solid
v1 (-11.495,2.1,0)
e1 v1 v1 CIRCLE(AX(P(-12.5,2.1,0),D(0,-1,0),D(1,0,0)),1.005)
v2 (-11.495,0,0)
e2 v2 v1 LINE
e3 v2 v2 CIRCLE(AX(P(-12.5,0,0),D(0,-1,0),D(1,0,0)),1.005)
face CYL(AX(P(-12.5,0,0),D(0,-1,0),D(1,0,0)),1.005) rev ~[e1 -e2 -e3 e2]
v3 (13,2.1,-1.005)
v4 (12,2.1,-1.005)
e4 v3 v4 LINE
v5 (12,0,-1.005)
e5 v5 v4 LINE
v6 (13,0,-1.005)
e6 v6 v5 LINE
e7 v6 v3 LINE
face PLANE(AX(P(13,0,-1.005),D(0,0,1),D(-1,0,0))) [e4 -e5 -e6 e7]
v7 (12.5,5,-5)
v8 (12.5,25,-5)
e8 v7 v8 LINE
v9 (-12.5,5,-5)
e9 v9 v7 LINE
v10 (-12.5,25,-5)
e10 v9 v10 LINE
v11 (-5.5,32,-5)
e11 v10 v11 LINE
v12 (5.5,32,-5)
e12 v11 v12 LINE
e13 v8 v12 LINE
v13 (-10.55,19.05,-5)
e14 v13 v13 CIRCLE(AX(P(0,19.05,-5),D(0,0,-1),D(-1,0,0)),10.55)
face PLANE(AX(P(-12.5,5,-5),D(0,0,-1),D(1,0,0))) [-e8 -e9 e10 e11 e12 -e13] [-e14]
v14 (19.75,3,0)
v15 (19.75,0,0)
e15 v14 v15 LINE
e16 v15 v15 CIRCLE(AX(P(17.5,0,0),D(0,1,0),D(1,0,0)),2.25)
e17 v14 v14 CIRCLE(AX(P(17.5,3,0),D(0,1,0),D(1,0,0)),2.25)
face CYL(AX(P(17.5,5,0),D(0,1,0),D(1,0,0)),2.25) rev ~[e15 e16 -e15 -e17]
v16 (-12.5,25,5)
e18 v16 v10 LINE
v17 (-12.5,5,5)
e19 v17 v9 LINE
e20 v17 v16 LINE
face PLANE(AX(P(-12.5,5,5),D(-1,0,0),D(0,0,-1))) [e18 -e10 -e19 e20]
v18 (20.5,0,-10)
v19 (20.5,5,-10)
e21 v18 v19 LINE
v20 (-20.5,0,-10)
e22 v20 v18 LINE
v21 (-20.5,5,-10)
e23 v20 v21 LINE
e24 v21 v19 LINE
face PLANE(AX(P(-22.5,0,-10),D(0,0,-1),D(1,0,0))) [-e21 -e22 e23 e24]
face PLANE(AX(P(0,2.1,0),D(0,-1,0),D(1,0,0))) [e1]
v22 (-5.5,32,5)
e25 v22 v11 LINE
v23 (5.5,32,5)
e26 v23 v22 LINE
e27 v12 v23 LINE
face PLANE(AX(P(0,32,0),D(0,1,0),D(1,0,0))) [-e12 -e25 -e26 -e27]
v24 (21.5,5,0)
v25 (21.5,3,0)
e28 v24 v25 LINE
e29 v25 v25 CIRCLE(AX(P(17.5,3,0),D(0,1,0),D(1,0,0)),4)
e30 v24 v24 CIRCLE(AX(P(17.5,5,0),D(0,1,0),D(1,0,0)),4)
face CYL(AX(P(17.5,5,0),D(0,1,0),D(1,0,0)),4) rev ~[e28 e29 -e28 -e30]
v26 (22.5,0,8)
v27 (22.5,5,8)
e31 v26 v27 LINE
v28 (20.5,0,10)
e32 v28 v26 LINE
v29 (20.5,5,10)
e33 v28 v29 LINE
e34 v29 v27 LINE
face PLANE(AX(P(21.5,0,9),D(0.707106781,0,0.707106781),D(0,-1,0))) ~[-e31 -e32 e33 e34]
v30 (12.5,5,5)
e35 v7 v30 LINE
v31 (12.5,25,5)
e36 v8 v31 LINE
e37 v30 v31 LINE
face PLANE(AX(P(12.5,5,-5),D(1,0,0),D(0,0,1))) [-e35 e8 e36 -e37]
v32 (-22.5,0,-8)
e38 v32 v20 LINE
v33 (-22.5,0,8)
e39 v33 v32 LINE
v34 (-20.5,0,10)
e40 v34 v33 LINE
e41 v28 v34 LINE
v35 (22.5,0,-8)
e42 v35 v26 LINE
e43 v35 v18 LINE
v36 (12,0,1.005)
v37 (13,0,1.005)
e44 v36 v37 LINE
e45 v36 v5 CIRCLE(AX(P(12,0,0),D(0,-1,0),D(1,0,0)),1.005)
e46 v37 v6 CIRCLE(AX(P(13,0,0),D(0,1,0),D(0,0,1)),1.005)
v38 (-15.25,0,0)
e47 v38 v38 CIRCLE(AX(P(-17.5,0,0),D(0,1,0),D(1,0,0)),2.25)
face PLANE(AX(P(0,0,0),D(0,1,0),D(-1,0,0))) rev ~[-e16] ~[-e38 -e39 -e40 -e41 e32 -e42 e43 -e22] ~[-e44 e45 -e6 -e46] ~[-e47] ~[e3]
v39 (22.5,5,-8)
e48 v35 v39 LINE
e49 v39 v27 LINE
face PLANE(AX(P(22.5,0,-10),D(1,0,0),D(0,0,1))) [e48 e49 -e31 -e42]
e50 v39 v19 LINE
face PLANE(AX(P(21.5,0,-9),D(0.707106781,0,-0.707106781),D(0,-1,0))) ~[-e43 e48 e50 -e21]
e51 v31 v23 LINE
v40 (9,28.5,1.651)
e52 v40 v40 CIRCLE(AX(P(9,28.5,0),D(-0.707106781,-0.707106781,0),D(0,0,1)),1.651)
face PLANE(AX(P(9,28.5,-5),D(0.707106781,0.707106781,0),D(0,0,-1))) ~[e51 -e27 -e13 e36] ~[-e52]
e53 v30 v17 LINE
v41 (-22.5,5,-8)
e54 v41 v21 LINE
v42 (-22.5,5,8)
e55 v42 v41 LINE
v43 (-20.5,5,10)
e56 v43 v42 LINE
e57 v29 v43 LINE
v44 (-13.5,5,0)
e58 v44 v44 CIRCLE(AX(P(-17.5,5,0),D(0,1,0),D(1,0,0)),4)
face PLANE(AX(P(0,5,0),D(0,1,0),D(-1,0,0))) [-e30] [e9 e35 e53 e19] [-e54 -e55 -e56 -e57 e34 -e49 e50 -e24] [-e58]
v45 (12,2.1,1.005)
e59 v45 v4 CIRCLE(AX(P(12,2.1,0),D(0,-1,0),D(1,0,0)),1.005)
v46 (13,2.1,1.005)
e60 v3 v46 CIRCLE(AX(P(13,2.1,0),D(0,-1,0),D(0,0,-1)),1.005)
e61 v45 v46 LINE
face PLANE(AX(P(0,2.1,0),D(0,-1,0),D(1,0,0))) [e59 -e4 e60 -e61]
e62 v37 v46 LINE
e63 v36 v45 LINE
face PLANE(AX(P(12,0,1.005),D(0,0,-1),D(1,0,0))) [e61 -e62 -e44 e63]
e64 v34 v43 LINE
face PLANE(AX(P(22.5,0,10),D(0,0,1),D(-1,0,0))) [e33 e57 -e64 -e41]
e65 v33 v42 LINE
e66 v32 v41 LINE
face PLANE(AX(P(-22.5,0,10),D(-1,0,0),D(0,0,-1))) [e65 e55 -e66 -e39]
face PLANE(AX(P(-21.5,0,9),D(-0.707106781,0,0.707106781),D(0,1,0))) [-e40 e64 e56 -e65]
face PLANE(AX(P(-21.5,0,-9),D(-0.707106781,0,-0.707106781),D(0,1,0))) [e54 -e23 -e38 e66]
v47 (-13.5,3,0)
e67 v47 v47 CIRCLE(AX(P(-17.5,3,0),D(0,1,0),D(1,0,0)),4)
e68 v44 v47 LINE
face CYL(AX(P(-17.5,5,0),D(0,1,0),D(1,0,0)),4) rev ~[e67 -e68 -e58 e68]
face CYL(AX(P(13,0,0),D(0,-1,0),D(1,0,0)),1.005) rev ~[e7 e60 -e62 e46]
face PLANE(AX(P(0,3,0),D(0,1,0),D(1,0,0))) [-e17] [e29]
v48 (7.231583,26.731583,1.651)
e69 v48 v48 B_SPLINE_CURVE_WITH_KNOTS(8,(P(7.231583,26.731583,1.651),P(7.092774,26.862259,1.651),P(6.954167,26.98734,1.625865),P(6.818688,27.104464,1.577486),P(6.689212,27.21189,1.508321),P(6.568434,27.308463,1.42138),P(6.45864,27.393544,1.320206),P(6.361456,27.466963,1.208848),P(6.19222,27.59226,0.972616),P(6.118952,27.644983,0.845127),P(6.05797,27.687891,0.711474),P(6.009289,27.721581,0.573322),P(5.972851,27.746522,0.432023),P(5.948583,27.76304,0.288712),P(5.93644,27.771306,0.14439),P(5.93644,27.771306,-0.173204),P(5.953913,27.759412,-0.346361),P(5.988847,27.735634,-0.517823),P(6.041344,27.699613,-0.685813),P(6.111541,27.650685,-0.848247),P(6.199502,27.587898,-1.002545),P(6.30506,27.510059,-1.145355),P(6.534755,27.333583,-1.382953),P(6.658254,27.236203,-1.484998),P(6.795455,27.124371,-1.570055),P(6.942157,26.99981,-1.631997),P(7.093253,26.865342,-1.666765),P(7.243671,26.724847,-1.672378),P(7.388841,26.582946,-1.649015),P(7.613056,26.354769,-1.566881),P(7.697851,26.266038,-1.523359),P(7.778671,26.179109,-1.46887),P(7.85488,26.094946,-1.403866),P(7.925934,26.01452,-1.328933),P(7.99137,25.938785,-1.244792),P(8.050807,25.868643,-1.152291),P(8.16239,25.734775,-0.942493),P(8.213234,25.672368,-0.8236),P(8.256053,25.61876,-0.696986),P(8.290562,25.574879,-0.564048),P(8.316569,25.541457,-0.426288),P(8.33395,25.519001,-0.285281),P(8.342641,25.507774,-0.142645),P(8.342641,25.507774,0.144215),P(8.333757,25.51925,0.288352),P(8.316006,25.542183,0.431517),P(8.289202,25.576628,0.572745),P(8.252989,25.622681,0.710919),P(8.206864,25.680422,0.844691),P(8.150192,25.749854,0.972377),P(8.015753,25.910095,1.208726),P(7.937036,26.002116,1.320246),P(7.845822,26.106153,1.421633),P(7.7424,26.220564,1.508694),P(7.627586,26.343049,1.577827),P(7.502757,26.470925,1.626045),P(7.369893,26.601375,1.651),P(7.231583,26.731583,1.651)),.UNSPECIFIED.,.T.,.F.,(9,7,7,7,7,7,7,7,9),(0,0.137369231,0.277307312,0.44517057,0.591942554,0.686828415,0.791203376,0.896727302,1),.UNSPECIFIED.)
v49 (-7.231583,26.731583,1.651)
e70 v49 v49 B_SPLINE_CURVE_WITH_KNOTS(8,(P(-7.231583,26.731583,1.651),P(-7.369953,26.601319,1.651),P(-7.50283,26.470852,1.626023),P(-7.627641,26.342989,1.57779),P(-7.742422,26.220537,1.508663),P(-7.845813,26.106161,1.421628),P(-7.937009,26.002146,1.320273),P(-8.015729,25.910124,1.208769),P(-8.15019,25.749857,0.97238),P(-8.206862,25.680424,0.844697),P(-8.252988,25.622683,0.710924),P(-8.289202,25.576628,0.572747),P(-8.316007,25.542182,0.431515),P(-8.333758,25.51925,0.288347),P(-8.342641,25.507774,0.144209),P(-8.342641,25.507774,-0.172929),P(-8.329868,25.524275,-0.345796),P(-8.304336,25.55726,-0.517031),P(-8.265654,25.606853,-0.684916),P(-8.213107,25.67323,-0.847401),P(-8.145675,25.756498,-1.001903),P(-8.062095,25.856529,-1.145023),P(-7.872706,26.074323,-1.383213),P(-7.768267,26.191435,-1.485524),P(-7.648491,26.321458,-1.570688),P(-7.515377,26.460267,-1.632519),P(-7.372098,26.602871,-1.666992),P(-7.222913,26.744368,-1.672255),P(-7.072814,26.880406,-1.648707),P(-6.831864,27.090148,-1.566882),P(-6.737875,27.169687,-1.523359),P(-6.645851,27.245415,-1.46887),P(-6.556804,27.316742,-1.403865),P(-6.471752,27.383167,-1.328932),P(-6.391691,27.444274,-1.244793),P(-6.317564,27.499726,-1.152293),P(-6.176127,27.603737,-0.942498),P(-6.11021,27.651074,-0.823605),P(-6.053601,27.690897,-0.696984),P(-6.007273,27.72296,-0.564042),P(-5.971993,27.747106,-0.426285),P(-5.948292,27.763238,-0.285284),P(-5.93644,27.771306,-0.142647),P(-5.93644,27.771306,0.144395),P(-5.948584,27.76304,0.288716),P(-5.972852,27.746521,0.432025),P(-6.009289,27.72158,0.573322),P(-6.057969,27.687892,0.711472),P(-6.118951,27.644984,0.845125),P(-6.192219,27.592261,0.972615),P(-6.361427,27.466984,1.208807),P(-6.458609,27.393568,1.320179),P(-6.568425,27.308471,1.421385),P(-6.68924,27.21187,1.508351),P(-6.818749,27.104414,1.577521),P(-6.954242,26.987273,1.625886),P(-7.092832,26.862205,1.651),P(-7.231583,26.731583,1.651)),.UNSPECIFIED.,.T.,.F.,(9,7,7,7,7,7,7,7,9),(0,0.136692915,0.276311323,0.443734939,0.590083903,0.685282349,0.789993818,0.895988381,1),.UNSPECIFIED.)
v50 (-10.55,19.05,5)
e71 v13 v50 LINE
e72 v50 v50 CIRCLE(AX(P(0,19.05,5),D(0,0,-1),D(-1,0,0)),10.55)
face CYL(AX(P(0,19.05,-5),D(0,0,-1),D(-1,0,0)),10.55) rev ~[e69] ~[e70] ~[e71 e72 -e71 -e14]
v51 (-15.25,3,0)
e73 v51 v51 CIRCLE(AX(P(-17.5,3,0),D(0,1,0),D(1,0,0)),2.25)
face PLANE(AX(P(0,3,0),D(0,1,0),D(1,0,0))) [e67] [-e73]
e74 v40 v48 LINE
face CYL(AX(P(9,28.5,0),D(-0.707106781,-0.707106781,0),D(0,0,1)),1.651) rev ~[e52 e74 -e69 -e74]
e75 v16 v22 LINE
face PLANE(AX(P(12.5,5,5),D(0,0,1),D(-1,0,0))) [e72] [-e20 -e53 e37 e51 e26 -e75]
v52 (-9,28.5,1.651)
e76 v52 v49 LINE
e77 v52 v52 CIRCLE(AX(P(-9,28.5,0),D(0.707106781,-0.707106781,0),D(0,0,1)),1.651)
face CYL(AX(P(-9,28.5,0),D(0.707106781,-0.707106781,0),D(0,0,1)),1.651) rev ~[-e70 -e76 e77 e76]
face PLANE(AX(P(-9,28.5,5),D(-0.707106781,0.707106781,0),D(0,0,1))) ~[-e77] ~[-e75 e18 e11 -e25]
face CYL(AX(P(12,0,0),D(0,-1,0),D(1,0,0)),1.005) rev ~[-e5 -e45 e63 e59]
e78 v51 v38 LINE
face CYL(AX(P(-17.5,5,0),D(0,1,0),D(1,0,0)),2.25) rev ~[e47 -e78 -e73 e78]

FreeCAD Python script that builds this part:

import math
import FreeCAD as App
import Part
import Sketcher
Q = App.Units.Quantity


def edges_at(feature, points):
    """Names of the edges that pass closest to the given points."""
    edges = feature.Shape.Edges
    near = lambda p: min(range(len(edges)), key=lambda i: edges[i].distToShape(Part.Vertex(*p))[0])
    return sorted({f"Edge{near(p) + 1}" for p in points})

doc = App.newDocument("Part")
body = doc.addObject("PartDesign::Body", "Body")

sketch1 = doc.addObject("Sketcher::SketchObject", "Sketch")
body.addObject(sketch1)
sketch1.AttachmentSupport = (doc.XZ_Plane, [""])
sketch1.MapMode = "FlatFace"
sketch1.addGeometry(Part.LineSegment(App.Vector(-22, 10, 0), App.Vector(22, 10, 0)), False)
sketch1.addGeometry(Part.LineSegment(App.Vector(22, 10, 0), App.Vector(22, -10, 0)), False)
sketch1.addGeometry(Part.LineSegment(App.Vector(22, -10, 0), App.Vector(-22, -10, 0)), False)
sketch1.addGeometry(Part.LineSegment(App.Vector(-22, -10, 0), App.Vector(-22, 10, 0)), False)
sketch1.addConstraint(Sketcher.Constraint("Coincident", 0, 2, 1, 1))
sketch1.addConstraint(Sketcher.Constraint("Coincident", 1, 2, 2, 1))
sketch1.addConstraint(Sketcher.Constraint("Coincident", 2, 2, 3, 1))
sketch1.addConstraint(Sketcher.Constraint("Coincident", 3, 2, 0, 1))
sketch1.addConstraint(Sketcher.Constraint("Horizontal", 0))
sketch1.addConstraint(Sketcher.Constraint("Vertical", 1))
sketch1.addConstraint(Sketcher.Constraint("Horizontal", 2))
sketch1.addConstraint(Sketcher.Constraint("Vertical", 3))
sketch1.addConstraint(Sketcher.Constraint("Symmetric", 0, 2, 2, 2, -1, 1))
sketch1.addConstraint(Sketcher.Constraint("DistanceX", 0, 1, 0, 2, Q("45 mm")))
sketch1.addConstraint(Sketcher.Constraint("DistanceY", 1, 2, 1, 1, Q("20 mm")))
pad1 = doc.addObject("PartDesign::Pad", "Pad")
body.addObject(pad1)
pad1.Profile = sketch1
pad1.Length = 5
pad1.Reversed = True

sketch2 = doc.addObject("Sketcher::SketchObject", "Sketch001")
body.addObject(sketch2)
sketch2.AttachmentSupport = (doc.XZ_Plane, [""])
sketch2.MapMode = "FlatFace"
sketch2.AttachmentOffset = App.Placement(App.Vector(0, 0, -5), App.Rotation())
sketch2.addGeometry(Part.LineSegment(App.Vector(-12, 5, 0), App.Vector(12, 5, 0)), False)
sketch2.addGeometry(Part.LineSegment(App.Vector(12, 5, 0), App.Vector(12, -5, 0)), False)
sketch2.addGeometry(Part.LineSegment(App.Vector(12, -5, 0), App.Vector(-12, -5, 0)), False)
sketch2.addGeometry(Part.LineSegment(App.Vector(-12, -5, 0), App.Vector(-12, 5, 0)), False)
sketch2.addConstraint(Sketcher.Constraint("Coincident", 0, 2, 1, 1))
sketch2.addConstraint(Sketcher.Constraint("Coincident", 1, 2, 2, 1))
sketch2.addConstraint(Sketcher.Constraint("Coincident", 2, 2, 3, 1))
sketch2.addConstraint(Sketcher.Constraint("Coincident", 3, 2, 0, 1))
sketch2.addConstraint(Sketcher.Constraint("Horizontal", 0))
sketch2.addConstraint(Sketcher.Constraint("Vertical", 1))
sketch2.addConstraint(Sketcher.Constraint("Horizontal", 2))
sketch2.addConstraint(Sketcher.Constraint("Vertical", 3))
sketch2.addConstraint(Sketcher.Constraint("Symmetric", 0, 2, 2, 2, -1, 1))
sketch2.addConstraint(Sketcher.Constraint("DistanceX", 0, 1, 0, 2, Q("25 mm")))
sketch2.addConstraint(Sketcher.Constraint("DistanceY", 1, 2, 1, 1, Q("10 mm")))
pad2 = doc.addObject("PartDesign::Pad", "Pad001")
body.addObject(pad2)
pad2.Profile = sketch2
pad2.Length = 27
pad2.Reversed = True

sketch3 = doc.addObject("Sketcher::SketchObject", "Sketch002")
body.addObject(sketch3)
sketch3.AttachmentSupport = (doc.XY_Plane, [""])
sketch3.MapMode = "FlatFace"
sketch3.AttachmentOffset = App.Placement(App.Vector(0, 0, -5), App.Rotation())
sketch3.addGeometry(Part.Circle(App.Vector(0, 19, 0), App.Vector(0, 0, 1), 11), False)
sketch3.addConstraint(Sketcher.Constraint("PointOnObject", 0, 3, -2))
sketch3.addConstraint(Sketcher.Constraint("Diameter", 0, Q("21.1 mm")))
sketch3.addConstraint(Sketcher.Constraint("DistanceY", -1, 1, 0, 3, Q("19.05 mm")))
pocket1 = doc.addObject("PartDesign::Pocket", "Pocket")
body.addObject(pocket1)
pocket1.Profile = sketch3
pocket1.Length = 10
pocket1.Reversed = True
doc.recompute()

chamfer = doc.addObject("PartDesign::Chamfer", "Chamfer")
body.addObject(chamfer)
chamfer.Base = (pocket1, edges_at(pocket1, [(12.5, 32, 0), (-12.5, 32, 0)]))
chamfer.Size = 7

sketch4 = doc.addObject("Sketcher::SketchObject", "Sketch003")
body.addObject(sketch4)
sketch4.Placement = App.Placement(App.Vector(18.75, 18.75, 0), App.Rotation(App.Vector(-0.707106781, 0.707106781, 0), App.Vector(0, 0, 0.999999999), App.Vector(0.707106781, 0.707106781, 0), "ZXY"))
sketch4.addGeometry(Part.Circle(App.Vector(13.8, 0, 0), App.Vector(0, 0, 1), 1.7), False)
sketch4.addConstraint(Sketcher.Constraint("PointOnObject", 0, 3, -1))
sketch4.addConstraint(Sketcher.Constraint("Diameter", 0, Q("3.302 mm")))
sketch4.addConstraint(Sketcher.Constraint("DistanceX", -1, 1, 0, 3, Q("13.7886 mm")))
doc.recompute()
hole = doc.addObject("PartDesign::Hole", "Hole")
body.addObject(hole)
hole.Profile = sketch4
hole.ThreadType = "None"
hole.Diameter = 3.302
hole.DepthType = "Dimension"
hole.Depth = 12.3
hole.DrillPoint = "Flat"

sketch5 = doc.addObject("Sketcher::SketchObject", "Sketch004")
body.addObject(sketch5)
sketch5.Placement = App.Placement(App.Vector(-18.75, 18.75, 0), App.Rotation(App.Vector(-0.707106781, -0.707106781, 0), App.Vector(0, 0, 0.999999999), App.Vector(-0.707106781, 0.707106781, 0), "ZXY"))
sketch5.addGeometry(Part.Circle(App.Vector(-13.8, 0, 0), App.Vector(0, 0, 1), 1.7), False)
sketch5.addConstraint(Sketcher.Constraint("PointOnObject", 0, 3, -1))
sketch5.addConstraint(Sketcher.Constraint("Diameter", 0, Q("3.302 mm")))
sketch5.addConstraint(Sketcher.Constraint("DistanceX", 0, 3, -1, 1, Q("13.7886 mm")))
doc.recompute()
hole2 = doc.addObject("PartDesign::Hole", "Hole001")
body.addObject(hole2)
hole2.Profile = sketch5
hole2.ThreadType = "None"
hole2.Diameter = 3.302
hole2.DepthType = "Dimension"
hole2.Depth = 12.3
hole2.DrillPoint = "Flat"

sketch6 = doc.addObject("Sketcher::SketchObject", "Sketch005")
body.addObject(sketch6)
sketch6.AttachmentSupport = (doc.XZ_Plane, [""])
sketch6.MapMode = "FlatFace"
sketch6.AttachmentOffset = App.Placement(App.Vector(0, 0, -5), App.Rotation())
sketch6.addGeometry(Part.Circle(App.Vector(17.5, 0, 0), App.Vector(0, 0, 1), 4), False)
sketch6.addGeometry(Part.Circle(App.Vector(-17.5, 0, 0), App.Vector(0, 0, 1), 4), False)
sketch6.addConstraint(Sketcher.Constraint("Equal", 0, 1))
sketch6.addConstraint(Sketcher.Constraint("Symmetric", 0, 3, 1, 3, -1, 1))
sketch6.addConstraint(Sketcher.Constraint("PointOnObject", 0, 3, -1))
sketch6.addConstraint(Sketcher.Constraint("Diameter", 0, Q("8 mm")))
sketch6.addConstraint(Sketcher.Constraint("DistanceX", 1, 3, 0, 3, Q("35 mm")))
pocket2 = doc.addObject("PartDesign::Pocket", "Pocket001")
body.addObject(pocket2)
pocket2.Profile = sketch6
pocket2.Length = 2
pocket2.Reversed = True

sketch7 = doc.addObject("Sketcher::SketchObject", "Sketch006")
body.addObject(sketch7)
sketch7.AttachmentSupport = (doc.XZ_Plane, [""])
sketch7.MapMode = "FlatFace"
sketch7.AttachmentOffset = App.Placement(App.Vector(0, 0, -5), App.Rotation())
sketch7.addGeometry(Part.Circle(App.Vector(17.5, 0, 0), App.Vector(0, 0, 1), 2.2), False)
sketch7.addGeometry(Part.Circle(App.Vector(-17.5, 0, 0), App.Vector(0, 0, 1), 2.2), False)
sketch7.addConstraint(Sketcher.Constraint("Equal", 0, 1))
sketch7.addConstraint(Sketcher.Constraint("Symmetric", 0, 3, 1, 3, -1, 1))
sketch7.addConstraint(Sketcher.Constraint("PointOnObject", 0, 3, -1))
sketch7.addConstraint(Sketcher.Constraint("Diameter", 0, Q("4.5 mm")))
sketch7.addConstraint(Sketcher.Constraint("DistanceX", 1, 3, 0, 3, Q("35 mm")))
pocket3 = doc.addObject("PartDesign::Pocket", "Pocket002")
body.addObject(pocket3)
pocket3.Profile = sketch7
pocket3.Type = "ThroughAll"
pocket3.Reversed = True

sketch8 = doc.addObject("Sketcher::SketchObject", "Sketch007")
body.addObject(sketch8)
sketch8.AttachmentSupport = (doc.XZ_Plane, [""])
sketch8.MapMode = "FlatFace"
sketch8.addGeometry(Part.Circle(App.Vector(-12.5, 0, 0), App.Vector(0, 0, 1), 1), False)
sketch8.addGeometry(Part.ArcOfCircle(Part.Circle(App.Vector(13, 0, 0), App.Vector(0, 0, 1), 1), math.radians(-90), math.radians(90)), False)
sketch8.addGeometry(Part.LineSegment(App.Vector(13, 1, 0), App.Vector(12, 1, 0)), False)
sketch8.addGeometry(Part.ArcOfCircle(Part.Circle(App.Vector(12, 0, 0), App.Vector(0, 0, 1), 1), math.radians(90), math.radians(270)), False)
sketch8.addGeometry(Part.LineSegment(App.Vector(12, -1, 0), App.Vector(13, -1, 0)), False)
sketch8.addConstraint(Sketcher.Constraint("Tangent", 1, 2, 2, 1))
sketch8.addConstraint(Sketcher.Constraint("Tangent", 2, 2, 3, 1))
sketch8.addConstraint(Sketcher.Constraint("Tangent", 3, 2, 4, 1))
sketch8.addConstraint(Sketcher.Constraint("Tangent", 4, 2, 1, 1))
sketch8.addConstraint(Sketcher.Constraint("Horizontal", 2))
sketch8.addConstraint(Sketcher.Constraint("Horizontal", 4))
sketch8.addConstraint(Sketcher.Constraint("Equal", 0, 1))
sketch8.addConstraint(Sketcher.Constraint("PointOnObject", 0, 3, -1))
sketch8.addConstraint(Sketcher.Constraint("PointOnObject", 1, 3, -1))
sketch8.addConstraint(Sketcher.Constraint("Diameter", 0, Q("2.01 mm")))
sketch8.addConstraint(Sketcher.Constraint("DistanceX", 2, 2, 2, 1, Q("1 mm")))
sketch8.addConstraint(Sketcher.Constraint("DistanceX", -1, 1, 1, 3, Q("13 mm")))
sketch8.addConstraint(Sketcher.Constraint("DistanceX", 0, 3, -1, 1, Q("12.5 mm")))
pocket4 = doc.addObject("PartDesign::Pocket", "Pocket003")
body.addObject(pocket4)
pocket4.Profile = sketch8
pocket4.Length = 2.1
doc.recompute()

chamfer2 = doc.addObject("PartDesign::Chamfer", "Chamfer001")
body.addObject(chamfer2)
chamfer2.Base = (pocket4, edges_at(pocket4, [
    (-22.5, 2.5, 10),
    (22.5, 2.5, 10),
    (-22.5, 2.5, -10),
    (22.5, 2.5, -10),
]))
chamfer2.Size = 2

doc.recompute()
